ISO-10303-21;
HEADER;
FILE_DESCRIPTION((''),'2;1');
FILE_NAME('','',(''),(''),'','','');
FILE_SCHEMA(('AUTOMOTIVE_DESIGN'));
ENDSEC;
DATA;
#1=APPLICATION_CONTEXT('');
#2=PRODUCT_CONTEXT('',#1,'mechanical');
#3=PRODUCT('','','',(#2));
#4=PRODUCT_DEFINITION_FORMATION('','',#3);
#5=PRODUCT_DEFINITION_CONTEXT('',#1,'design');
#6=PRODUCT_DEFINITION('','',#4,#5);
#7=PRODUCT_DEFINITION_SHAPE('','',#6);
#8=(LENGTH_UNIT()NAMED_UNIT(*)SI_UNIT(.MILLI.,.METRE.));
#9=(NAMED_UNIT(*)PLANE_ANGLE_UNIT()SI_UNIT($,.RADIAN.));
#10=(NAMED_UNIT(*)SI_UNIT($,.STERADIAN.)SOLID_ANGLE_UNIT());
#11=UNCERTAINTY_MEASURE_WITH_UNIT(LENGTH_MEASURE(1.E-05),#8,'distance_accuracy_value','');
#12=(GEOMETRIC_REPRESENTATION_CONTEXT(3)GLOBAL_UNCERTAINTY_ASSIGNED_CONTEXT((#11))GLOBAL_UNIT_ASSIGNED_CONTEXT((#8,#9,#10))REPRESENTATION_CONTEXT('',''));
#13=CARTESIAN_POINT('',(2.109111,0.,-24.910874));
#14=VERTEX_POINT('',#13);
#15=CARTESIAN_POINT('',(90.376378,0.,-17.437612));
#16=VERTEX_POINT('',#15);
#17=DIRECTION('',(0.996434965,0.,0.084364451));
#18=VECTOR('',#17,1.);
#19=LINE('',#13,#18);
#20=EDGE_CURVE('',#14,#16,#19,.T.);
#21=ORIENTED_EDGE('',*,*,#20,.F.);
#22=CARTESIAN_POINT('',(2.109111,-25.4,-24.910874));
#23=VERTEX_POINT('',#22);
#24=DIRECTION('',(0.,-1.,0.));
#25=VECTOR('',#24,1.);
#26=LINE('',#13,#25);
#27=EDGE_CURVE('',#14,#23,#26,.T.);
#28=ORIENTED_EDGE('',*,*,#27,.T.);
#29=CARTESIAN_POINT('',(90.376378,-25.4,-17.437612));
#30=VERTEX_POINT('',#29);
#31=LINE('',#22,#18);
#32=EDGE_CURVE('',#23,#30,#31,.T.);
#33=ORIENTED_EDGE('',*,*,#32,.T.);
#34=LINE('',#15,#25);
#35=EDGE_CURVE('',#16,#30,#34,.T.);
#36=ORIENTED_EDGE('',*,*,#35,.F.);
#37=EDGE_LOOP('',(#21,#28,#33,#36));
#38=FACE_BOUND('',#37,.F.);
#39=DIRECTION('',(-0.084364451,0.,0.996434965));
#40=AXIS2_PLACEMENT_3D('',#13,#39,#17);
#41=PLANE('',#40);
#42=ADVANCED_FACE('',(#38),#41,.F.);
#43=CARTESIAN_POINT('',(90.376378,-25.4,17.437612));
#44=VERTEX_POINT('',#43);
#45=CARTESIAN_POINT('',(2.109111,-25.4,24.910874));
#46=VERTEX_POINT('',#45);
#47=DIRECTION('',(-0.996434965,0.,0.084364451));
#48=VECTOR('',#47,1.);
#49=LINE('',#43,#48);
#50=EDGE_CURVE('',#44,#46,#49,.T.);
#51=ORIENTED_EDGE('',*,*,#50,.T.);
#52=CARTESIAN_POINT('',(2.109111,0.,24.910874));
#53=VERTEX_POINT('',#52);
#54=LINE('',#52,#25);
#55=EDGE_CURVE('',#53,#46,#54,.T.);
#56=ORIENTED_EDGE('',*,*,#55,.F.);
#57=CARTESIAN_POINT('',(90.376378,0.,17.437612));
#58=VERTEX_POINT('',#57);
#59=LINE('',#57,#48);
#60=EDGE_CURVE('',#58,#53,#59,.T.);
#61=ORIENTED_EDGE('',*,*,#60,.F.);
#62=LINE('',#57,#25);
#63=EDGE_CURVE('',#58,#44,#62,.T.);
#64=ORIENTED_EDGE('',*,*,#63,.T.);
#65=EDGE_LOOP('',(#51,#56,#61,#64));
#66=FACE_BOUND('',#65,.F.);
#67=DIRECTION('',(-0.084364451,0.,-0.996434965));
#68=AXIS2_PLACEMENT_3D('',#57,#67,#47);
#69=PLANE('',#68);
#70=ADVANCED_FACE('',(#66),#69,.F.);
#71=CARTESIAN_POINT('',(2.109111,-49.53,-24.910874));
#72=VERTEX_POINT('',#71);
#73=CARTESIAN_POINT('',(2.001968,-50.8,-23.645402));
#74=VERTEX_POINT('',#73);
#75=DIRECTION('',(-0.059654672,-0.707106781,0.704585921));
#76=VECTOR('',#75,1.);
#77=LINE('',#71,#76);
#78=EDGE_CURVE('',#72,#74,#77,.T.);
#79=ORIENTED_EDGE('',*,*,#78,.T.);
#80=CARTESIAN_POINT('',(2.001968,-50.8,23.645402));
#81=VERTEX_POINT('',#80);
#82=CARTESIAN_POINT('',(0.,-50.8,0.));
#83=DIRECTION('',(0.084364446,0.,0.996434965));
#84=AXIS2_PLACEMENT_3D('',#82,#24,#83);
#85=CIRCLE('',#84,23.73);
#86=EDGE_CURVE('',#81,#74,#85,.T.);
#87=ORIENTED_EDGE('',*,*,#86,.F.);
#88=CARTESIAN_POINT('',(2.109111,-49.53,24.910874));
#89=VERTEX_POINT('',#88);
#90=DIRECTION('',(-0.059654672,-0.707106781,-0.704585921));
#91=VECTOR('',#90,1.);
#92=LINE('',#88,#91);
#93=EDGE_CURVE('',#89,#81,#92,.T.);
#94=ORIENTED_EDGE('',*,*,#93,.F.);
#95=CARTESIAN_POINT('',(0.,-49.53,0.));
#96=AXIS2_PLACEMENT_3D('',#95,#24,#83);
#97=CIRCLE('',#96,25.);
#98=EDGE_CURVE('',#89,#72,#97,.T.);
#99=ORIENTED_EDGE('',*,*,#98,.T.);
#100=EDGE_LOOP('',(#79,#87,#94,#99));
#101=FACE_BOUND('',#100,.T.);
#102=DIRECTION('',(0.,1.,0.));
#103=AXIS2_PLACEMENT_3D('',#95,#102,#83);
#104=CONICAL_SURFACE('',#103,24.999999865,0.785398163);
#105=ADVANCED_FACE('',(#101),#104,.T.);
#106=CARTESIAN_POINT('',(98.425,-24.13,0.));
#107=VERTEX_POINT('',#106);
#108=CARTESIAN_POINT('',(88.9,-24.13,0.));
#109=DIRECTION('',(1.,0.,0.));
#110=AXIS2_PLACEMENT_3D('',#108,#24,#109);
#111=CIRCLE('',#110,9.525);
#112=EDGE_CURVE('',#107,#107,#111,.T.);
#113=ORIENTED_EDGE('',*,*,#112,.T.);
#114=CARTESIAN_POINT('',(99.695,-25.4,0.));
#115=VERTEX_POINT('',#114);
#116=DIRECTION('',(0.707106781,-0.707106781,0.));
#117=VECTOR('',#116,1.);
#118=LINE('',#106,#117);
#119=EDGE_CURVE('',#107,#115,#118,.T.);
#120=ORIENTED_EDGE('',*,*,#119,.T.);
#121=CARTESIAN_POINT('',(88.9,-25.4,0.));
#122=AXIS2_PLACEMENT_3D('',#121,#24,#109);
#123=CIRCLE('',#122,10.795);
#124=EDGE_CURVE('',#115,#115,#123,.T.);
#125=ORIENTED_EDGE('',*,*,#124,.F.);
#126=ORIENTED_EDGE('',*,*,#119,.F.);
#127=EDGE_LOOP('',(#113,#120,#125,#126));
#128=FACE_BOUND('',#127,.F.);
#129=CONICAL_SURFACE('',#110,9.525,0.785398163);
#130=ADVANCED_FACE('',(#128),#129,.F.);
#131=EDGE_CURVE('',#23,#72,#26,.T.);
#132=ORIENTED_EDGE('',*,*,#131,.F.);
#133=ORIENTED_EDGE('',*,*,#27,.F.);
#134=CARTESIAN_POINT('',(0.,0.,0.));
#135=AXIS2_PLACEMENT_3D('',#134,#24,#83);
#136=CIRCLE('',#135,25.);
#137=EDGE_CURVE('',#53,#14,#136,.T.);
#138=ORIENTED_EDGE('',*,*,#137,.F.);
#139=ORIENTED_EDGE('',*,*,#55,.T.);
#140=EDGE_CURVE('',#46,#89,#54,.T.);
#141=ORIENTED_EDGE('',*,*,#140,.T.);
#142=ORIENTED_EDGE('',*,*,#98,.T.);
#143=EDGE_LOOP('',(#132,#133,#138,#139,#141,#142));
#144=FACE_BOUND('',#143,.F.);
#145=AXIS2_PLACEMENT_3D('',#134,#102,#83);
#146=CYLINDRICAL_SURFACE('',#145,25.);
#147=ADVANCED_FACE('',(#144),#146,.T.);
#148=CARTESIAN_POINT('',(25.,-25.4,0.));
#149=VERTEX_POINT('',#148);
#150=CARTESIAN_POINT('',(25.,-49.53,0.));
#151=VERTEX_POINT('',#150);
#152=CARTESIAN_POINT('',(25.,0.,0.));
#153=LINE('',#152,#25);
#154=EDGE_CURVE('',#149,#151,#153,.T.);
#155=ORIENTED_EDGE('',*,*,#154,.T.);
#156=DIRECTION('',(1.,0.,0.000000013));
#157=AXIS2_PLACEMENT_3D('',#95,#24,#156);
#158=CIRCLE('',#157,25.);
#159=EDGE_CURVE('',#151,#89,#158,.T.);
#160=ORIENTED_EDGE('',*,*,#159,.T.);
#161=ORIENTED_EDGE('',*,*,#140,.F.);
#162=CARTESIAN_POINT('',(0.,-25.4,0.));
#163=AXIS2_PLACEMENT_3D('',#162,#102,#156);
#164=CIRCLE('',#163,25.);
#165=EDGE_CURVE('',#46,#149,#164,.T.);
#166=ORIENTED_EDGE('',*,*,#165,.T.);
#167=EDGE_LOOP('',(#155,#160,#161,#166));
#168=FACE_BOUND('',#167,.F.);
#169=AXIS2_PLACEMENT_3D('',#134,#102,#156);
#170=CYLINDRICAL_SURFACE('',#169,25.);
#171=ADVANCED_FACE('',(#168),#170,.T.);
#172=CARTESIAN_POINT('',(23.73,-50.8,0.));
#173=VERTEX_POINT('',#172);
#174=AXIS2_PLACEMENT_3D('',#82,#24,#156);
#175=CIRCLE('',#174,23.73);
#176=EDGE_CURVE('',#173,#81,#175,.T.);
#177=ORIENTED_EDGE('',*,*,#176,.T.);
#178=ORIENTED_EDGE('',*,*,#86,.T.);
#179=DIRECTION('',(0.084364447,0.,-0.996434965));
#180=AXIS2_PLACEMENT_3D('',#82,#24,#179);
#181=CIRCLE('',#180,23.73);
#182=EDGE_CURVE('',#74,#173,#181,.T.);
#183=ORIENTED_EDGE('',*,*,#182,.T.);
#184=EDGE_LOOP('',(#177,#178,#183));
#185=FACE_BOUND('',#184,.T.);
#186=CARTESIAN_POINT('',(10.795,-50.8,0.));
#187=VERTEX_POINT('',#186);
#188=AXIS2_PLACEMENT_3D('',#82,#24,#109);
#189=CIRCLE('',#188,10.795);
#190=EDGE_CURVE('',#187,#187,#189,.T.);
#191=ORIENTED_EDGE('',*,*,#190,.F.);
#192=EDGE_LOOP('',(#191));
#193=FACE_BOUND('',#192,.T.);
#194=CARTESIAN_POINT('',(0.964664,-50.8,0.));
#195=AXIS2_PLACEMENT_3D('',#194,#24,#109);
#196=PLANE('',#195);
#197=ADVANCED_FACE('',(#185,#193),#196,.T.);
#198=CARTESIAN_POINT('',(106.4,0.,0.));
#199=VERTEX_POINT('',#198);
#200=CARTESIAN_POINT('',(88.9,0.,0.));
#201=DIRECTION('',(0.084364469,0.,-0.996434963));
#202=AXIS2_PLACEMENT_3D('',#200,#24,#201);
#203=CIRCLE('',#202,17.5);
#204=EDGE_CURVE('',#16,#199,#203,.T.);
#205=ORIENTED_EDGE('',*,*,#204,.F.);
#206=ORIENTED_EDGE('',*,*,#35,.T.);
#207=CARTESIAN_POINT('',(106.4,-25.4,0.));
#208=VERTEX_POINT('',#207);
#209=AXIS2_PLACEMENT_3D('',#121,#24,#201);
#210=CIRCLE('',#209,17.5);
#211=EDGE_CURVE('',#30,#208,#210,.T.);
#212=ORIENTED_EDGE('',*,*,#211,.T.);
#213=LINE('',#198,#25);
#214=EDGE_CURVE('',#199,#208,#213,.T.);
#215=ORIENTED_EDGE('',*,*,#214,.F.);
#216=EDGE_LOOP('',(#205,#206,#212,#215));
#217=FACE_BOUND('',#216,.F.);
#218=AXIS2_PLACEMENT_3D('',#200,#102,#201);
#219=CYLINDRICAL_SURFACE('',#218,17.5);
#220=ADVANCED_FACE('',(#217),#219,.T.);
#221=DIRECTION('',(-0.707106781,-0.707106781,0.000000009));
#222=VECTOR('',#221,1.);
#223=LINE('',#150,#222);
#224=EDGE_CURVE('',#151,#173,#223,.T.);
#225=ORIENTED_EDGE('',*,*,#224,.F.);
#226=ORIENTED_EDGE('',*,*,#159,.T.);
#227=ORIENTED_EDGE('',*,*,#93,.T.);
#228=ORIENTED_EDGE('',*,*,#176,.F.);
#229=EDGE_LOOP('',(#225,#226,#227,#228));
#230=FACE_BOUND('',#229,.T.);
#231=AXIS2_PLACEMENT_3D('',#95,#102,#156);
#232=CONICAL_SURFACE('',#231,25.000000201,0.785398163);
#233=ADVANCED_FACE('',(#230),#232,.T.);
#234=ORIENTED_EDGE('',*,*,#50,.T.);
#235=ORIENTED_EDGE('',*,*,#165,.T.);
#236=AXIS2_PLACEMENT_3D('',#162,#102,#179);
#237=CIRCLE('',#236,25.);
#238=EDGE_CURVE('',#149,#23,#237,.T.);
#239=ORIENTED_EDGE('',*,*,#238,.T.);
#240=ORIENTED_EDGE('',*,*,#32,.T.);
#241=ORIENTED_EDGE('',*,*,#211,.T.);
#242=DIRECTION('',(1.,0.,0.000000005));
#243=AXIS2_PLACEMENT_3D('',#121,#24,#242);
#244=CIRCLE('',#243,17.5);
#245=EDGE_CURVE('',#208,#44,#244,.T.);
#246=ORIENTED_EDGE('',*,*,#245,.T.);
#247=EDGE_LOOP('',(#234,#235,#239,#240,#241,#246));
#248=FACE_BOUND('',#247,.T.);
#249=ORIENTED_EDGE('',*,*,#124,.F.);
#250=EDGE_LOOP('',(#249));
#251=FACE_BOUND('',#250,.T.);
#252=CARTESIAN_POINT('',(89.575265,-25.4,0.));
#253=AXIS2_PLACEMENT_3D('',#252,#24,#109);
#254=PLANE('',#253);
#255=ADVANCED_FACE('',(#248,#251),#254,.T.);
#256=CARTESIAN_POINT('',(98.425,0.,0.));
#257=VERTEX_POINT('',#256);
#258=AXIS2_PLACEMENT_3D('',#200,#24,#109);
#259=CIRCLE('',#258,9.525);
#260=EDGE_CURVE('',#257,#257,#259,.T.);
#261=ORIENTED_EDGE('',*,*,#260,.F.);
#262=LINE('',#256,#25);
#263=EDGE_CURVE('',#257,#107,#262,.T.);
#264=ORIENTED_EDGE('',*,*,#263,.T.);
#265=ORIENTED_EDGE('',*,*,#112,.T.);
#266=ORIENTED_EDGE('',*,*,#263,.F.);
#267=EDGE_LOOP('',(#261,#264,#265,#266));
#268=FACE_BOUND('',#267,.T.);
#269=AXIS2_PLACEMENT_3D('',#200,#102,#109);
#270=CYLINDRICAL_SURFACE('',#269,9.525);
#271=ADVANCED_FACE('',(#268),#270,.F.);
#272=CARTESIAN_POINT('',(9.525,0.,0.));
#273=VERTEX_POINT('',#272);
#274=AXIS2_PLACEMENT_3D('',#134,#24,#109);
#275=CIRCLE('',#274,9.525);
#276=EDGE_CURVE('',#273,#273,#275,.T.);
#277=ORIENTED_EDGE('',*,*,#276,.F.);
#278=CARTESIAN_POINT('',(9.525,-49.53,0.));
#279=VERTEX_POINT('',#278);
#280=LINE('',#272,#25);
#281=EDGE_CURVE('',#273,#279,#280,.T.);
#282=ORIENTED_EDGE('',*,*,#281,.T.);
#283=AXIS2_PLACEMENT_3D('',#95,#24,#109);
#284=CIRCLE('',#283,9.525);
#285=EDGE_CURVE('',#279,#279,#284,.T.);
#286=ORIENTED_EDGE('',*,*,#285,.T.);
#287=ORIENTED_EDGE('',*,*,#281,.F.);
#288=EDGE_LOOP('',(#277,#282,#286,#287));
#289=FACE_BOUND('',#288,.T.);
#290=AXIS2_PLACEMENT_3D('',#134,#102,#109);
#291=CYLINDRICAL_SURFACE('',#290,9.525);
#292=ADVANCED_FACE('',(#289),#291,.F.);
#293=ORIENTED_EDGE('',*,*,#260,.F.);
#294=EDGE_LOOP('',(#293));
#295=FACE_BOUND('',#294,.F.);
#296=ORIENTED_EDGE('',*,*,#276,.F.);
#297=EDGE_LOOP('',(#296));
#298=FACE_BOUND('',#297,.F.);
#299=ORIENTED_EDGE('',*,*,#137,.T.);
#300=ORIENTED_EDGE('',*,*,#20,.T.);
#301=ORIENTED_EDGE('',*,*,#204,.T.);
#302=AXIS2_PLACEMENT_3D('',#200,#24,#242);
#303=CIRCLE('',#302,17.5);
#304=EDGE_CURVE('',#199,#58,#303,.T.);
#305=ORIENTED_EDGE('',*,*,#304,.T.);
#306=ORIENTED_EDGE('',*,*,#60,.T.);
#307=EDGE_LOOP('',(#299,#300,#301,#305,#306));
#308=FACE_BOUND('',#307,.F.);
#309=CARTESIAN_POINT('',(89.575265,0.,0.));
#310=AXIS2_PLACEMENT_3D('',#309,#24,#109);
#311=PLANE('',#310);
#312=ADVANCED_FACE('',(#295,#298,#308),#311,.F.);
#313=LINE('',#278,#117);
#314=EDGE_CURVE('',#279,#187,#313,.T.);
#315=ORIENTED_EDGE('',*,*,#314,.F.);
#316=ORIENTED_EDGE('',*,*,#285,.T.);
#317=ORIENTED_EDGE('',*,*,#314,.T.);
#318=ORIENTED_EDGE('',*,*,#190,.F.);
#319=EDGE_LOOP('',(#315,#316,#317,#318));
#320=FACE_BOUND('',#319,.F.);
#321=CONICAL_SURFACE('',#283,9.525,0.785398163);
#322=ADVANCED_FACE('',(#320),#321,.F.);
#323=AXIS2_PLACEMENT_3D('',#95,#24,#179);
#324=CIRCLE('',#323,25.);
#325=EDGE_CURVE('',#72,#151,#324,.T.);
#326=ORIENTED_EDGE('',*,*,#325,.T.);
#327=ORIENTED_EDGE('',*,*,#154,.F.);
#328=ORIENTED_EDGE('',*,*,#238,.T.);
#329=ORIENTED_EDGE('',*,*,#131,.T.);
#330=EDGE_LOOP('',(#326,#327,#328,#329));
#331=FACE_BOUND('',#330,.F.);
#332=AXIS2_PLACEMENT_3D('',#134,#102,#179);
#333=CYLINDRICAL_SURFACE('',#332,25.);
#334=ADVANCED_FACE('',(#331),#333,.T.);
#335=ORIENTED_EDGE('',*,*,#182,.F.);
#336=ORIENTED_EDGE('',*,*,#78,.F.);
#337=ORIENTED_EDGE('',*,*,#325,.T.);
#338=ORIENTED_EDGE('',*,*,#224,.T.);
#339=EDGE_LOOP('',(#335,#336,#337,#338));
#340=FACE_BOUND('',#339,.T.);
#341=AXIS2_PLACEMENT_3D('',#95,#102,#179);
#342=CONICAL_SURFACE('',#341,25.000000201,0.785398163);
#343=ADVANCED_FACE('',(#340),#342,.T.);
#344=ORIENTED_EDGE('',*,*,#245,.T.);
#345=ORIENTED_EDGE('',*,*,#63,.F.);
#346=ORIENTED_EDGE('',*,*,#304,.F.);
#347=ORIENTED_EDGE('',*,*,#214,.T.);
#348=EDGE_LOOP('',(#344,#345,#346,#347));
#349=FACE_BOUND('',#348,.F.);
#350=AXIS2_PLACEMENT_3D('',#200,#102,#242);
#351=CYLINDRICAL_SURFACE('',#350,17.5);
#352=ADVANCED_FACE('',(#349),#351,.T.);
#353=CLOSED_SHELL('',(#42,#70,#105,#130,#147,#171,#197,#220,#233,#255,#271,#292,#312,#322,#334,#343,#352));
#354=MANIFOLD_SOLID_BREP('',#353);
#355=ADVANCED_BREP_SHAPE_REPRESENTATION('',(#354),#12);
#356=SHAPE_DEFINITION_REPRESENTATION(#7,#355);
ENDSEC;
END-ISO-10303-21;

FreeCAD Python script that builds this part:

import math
import FreeCAD as App
import Part
import Sketcher

V = App.Vector
Q = App.Units.Quantity


def edges_at(feature, points):
    """Names of the edges that pass closest to the given points."""
    edges = feature.Shape.Edges
    near = lambda p: min(range(len(edges)), key=lambda i: edges[i].distToShape(Part.Vertex(*p))[0])
    return sorted({f"Edge{near(p) + 1}" for p in points})

doc = App.newDocument("Part")
body = doc.addObject("PartDesign::Body", "Body")

sketch1 = body.newObject("Sketcher::SketchObject", "Sketch")
sketch1.AttachmentSupport = (doc.getObject("XZ_Plane"), [""])
sketch1.MapMode = "FlatFace"
sketch1.addGeometry([
    Part.ArcOfCircle(Part.Circle(V(89, 0, 0), V(0, 0, 1), 18), math.radians(-85), math.radians(0)),
    Part.ArcOfCircle(Part.Circle(V(89, 0, 0), V(0, 0, 1), 18), math.radians(0), math.radians(85)),
    Part.LineSegment(V(90, 17, 0), V(2, 25, 0)),
    Part.ArcOfCircle(Part.Circle(V(0, 0, 0), V(0, 0, 1), 25), math.radians(85), math.radians(275)),
    Part.LineSegment(V(2, -25, 0), V(90, -17, 0)),
    Part.Circle(V(0, 0, 0), V(0, 0, 1), 10),
    Part.Circle(V(89, 0, 0), V(0, 0, 1), 10),
], False)
sketch1.addConstraint([
    Sketcher.Constraint("Tangent", 0, 2, 1, 1),
    Sketcher.Constraint("Tangent", 1, 2, 2, 1),
    Sketcher.Constraint("Tangent", 2, 2, 3, 1),
    Sketcher.Constraint("Tangent", 3, 2, 4, 1),
    Sketcher.Constraint("Tangent", 4, 2, 0, 1),
    Sketcher.Constraint("Coincident", 3, 3, -1, 1),
    Sketcher.Constraint("Coincident", 5, 3, -1, 1),
    Sketcher.Constraint("Coincident", 6, 3, 0, 3),
    Sketcher.Constraint("Equal", 0, 1),
    Sketcher.Constraint("Equal", 5, 6),
    Sketcher.Constraint("PointOnObject", 0, 3, -1),
    Sketcher.Constraint("PointOnObject", 0, 2, -1),
    Sketcher.Constraint("Diameter", 5, Q("0.75 in")),
    Sketcher.Constraint("DistanceX", -1, 1, 0, 3, Q("3.5 in")),
    Sketcher.Constraint("Radius", 0, 17.5),
    Sketcher.Constraint("Radius", 3, 25.0),
])
pad1 = body.newObject("PartDesign::Pad", "Pad")
pad1.Profile = sketch1
pad1.Length = Q("1 in")

sketch2 = body.newObject("Sketcher::SketchObject", "Sketch001")
sketch2.AttachmentSupport = (doc.getObject("XZ_Plane"), [""])
sketch2.MapMode = "FlatFace"
sketch2.addGeometry([
    Part.ArcOfCircle(Part.Circle(V(0, 0, 0), V(0, 0, 1), 25), math.radians(0), math.radians(85)),
    Part.ArcOfCircle(Part.Circle(V(0, 0, 0), V(0, 0, 1), 25), math.radians(85), math.radians(275)),
    Part.ArcOfCircle(Part.Circle(V(0, 0, 0), V(0, 0, 1), 25), math.radians(-85), math.radians(0)),
    Part.Circle(V(0, 0, 0), V(0, 0, 1), 10),
], False)
sketch2.addConstraint([
    Sketcher.Constraint("Tangent", 0, 2, 1, 1),
    Sketcher.Constraint("Tangent", 1, 2, 2, 1),
    Sketcher.Constraint("Tangent", 2, 2, 0, 1),
    Sketcher.Constraint("Coincident", 0, 3, -1, 1),
    Sketcher.Constraint("Coincident", 3, 3, -1, 1),
    Sketcher.Constraint("PointOnObject", 2, 2, -1),
    Sketcher.Constraint("Vertical", 0, 2, 1, 2),
    Sketcher.Constraint("Diameter", 3, Q("0.75 in")),
    Sketcher.Constraint("Radius", 0, 25.0),
    Sketcher.Constraint("DistanceX", -1, 1, 0, 2, 2.109111),
])
pad2 = body.newObject("PartDesign::Pad", "Pad001")
pad2.Profile = sketch2
pad2.Length = Q("2 in")
doc.recompute()

chamfer = body.newObject("PartDesign::Chamfer", "Chamfer")
chamfer.Base = (pad2, edges_at(pad2, [(-9.525, -50.8, 0), (-25, -50.8, 0), (79.375, -25.4, 0)]))
chamfer.Size = Q("0.05 in")

doc.recompute()
